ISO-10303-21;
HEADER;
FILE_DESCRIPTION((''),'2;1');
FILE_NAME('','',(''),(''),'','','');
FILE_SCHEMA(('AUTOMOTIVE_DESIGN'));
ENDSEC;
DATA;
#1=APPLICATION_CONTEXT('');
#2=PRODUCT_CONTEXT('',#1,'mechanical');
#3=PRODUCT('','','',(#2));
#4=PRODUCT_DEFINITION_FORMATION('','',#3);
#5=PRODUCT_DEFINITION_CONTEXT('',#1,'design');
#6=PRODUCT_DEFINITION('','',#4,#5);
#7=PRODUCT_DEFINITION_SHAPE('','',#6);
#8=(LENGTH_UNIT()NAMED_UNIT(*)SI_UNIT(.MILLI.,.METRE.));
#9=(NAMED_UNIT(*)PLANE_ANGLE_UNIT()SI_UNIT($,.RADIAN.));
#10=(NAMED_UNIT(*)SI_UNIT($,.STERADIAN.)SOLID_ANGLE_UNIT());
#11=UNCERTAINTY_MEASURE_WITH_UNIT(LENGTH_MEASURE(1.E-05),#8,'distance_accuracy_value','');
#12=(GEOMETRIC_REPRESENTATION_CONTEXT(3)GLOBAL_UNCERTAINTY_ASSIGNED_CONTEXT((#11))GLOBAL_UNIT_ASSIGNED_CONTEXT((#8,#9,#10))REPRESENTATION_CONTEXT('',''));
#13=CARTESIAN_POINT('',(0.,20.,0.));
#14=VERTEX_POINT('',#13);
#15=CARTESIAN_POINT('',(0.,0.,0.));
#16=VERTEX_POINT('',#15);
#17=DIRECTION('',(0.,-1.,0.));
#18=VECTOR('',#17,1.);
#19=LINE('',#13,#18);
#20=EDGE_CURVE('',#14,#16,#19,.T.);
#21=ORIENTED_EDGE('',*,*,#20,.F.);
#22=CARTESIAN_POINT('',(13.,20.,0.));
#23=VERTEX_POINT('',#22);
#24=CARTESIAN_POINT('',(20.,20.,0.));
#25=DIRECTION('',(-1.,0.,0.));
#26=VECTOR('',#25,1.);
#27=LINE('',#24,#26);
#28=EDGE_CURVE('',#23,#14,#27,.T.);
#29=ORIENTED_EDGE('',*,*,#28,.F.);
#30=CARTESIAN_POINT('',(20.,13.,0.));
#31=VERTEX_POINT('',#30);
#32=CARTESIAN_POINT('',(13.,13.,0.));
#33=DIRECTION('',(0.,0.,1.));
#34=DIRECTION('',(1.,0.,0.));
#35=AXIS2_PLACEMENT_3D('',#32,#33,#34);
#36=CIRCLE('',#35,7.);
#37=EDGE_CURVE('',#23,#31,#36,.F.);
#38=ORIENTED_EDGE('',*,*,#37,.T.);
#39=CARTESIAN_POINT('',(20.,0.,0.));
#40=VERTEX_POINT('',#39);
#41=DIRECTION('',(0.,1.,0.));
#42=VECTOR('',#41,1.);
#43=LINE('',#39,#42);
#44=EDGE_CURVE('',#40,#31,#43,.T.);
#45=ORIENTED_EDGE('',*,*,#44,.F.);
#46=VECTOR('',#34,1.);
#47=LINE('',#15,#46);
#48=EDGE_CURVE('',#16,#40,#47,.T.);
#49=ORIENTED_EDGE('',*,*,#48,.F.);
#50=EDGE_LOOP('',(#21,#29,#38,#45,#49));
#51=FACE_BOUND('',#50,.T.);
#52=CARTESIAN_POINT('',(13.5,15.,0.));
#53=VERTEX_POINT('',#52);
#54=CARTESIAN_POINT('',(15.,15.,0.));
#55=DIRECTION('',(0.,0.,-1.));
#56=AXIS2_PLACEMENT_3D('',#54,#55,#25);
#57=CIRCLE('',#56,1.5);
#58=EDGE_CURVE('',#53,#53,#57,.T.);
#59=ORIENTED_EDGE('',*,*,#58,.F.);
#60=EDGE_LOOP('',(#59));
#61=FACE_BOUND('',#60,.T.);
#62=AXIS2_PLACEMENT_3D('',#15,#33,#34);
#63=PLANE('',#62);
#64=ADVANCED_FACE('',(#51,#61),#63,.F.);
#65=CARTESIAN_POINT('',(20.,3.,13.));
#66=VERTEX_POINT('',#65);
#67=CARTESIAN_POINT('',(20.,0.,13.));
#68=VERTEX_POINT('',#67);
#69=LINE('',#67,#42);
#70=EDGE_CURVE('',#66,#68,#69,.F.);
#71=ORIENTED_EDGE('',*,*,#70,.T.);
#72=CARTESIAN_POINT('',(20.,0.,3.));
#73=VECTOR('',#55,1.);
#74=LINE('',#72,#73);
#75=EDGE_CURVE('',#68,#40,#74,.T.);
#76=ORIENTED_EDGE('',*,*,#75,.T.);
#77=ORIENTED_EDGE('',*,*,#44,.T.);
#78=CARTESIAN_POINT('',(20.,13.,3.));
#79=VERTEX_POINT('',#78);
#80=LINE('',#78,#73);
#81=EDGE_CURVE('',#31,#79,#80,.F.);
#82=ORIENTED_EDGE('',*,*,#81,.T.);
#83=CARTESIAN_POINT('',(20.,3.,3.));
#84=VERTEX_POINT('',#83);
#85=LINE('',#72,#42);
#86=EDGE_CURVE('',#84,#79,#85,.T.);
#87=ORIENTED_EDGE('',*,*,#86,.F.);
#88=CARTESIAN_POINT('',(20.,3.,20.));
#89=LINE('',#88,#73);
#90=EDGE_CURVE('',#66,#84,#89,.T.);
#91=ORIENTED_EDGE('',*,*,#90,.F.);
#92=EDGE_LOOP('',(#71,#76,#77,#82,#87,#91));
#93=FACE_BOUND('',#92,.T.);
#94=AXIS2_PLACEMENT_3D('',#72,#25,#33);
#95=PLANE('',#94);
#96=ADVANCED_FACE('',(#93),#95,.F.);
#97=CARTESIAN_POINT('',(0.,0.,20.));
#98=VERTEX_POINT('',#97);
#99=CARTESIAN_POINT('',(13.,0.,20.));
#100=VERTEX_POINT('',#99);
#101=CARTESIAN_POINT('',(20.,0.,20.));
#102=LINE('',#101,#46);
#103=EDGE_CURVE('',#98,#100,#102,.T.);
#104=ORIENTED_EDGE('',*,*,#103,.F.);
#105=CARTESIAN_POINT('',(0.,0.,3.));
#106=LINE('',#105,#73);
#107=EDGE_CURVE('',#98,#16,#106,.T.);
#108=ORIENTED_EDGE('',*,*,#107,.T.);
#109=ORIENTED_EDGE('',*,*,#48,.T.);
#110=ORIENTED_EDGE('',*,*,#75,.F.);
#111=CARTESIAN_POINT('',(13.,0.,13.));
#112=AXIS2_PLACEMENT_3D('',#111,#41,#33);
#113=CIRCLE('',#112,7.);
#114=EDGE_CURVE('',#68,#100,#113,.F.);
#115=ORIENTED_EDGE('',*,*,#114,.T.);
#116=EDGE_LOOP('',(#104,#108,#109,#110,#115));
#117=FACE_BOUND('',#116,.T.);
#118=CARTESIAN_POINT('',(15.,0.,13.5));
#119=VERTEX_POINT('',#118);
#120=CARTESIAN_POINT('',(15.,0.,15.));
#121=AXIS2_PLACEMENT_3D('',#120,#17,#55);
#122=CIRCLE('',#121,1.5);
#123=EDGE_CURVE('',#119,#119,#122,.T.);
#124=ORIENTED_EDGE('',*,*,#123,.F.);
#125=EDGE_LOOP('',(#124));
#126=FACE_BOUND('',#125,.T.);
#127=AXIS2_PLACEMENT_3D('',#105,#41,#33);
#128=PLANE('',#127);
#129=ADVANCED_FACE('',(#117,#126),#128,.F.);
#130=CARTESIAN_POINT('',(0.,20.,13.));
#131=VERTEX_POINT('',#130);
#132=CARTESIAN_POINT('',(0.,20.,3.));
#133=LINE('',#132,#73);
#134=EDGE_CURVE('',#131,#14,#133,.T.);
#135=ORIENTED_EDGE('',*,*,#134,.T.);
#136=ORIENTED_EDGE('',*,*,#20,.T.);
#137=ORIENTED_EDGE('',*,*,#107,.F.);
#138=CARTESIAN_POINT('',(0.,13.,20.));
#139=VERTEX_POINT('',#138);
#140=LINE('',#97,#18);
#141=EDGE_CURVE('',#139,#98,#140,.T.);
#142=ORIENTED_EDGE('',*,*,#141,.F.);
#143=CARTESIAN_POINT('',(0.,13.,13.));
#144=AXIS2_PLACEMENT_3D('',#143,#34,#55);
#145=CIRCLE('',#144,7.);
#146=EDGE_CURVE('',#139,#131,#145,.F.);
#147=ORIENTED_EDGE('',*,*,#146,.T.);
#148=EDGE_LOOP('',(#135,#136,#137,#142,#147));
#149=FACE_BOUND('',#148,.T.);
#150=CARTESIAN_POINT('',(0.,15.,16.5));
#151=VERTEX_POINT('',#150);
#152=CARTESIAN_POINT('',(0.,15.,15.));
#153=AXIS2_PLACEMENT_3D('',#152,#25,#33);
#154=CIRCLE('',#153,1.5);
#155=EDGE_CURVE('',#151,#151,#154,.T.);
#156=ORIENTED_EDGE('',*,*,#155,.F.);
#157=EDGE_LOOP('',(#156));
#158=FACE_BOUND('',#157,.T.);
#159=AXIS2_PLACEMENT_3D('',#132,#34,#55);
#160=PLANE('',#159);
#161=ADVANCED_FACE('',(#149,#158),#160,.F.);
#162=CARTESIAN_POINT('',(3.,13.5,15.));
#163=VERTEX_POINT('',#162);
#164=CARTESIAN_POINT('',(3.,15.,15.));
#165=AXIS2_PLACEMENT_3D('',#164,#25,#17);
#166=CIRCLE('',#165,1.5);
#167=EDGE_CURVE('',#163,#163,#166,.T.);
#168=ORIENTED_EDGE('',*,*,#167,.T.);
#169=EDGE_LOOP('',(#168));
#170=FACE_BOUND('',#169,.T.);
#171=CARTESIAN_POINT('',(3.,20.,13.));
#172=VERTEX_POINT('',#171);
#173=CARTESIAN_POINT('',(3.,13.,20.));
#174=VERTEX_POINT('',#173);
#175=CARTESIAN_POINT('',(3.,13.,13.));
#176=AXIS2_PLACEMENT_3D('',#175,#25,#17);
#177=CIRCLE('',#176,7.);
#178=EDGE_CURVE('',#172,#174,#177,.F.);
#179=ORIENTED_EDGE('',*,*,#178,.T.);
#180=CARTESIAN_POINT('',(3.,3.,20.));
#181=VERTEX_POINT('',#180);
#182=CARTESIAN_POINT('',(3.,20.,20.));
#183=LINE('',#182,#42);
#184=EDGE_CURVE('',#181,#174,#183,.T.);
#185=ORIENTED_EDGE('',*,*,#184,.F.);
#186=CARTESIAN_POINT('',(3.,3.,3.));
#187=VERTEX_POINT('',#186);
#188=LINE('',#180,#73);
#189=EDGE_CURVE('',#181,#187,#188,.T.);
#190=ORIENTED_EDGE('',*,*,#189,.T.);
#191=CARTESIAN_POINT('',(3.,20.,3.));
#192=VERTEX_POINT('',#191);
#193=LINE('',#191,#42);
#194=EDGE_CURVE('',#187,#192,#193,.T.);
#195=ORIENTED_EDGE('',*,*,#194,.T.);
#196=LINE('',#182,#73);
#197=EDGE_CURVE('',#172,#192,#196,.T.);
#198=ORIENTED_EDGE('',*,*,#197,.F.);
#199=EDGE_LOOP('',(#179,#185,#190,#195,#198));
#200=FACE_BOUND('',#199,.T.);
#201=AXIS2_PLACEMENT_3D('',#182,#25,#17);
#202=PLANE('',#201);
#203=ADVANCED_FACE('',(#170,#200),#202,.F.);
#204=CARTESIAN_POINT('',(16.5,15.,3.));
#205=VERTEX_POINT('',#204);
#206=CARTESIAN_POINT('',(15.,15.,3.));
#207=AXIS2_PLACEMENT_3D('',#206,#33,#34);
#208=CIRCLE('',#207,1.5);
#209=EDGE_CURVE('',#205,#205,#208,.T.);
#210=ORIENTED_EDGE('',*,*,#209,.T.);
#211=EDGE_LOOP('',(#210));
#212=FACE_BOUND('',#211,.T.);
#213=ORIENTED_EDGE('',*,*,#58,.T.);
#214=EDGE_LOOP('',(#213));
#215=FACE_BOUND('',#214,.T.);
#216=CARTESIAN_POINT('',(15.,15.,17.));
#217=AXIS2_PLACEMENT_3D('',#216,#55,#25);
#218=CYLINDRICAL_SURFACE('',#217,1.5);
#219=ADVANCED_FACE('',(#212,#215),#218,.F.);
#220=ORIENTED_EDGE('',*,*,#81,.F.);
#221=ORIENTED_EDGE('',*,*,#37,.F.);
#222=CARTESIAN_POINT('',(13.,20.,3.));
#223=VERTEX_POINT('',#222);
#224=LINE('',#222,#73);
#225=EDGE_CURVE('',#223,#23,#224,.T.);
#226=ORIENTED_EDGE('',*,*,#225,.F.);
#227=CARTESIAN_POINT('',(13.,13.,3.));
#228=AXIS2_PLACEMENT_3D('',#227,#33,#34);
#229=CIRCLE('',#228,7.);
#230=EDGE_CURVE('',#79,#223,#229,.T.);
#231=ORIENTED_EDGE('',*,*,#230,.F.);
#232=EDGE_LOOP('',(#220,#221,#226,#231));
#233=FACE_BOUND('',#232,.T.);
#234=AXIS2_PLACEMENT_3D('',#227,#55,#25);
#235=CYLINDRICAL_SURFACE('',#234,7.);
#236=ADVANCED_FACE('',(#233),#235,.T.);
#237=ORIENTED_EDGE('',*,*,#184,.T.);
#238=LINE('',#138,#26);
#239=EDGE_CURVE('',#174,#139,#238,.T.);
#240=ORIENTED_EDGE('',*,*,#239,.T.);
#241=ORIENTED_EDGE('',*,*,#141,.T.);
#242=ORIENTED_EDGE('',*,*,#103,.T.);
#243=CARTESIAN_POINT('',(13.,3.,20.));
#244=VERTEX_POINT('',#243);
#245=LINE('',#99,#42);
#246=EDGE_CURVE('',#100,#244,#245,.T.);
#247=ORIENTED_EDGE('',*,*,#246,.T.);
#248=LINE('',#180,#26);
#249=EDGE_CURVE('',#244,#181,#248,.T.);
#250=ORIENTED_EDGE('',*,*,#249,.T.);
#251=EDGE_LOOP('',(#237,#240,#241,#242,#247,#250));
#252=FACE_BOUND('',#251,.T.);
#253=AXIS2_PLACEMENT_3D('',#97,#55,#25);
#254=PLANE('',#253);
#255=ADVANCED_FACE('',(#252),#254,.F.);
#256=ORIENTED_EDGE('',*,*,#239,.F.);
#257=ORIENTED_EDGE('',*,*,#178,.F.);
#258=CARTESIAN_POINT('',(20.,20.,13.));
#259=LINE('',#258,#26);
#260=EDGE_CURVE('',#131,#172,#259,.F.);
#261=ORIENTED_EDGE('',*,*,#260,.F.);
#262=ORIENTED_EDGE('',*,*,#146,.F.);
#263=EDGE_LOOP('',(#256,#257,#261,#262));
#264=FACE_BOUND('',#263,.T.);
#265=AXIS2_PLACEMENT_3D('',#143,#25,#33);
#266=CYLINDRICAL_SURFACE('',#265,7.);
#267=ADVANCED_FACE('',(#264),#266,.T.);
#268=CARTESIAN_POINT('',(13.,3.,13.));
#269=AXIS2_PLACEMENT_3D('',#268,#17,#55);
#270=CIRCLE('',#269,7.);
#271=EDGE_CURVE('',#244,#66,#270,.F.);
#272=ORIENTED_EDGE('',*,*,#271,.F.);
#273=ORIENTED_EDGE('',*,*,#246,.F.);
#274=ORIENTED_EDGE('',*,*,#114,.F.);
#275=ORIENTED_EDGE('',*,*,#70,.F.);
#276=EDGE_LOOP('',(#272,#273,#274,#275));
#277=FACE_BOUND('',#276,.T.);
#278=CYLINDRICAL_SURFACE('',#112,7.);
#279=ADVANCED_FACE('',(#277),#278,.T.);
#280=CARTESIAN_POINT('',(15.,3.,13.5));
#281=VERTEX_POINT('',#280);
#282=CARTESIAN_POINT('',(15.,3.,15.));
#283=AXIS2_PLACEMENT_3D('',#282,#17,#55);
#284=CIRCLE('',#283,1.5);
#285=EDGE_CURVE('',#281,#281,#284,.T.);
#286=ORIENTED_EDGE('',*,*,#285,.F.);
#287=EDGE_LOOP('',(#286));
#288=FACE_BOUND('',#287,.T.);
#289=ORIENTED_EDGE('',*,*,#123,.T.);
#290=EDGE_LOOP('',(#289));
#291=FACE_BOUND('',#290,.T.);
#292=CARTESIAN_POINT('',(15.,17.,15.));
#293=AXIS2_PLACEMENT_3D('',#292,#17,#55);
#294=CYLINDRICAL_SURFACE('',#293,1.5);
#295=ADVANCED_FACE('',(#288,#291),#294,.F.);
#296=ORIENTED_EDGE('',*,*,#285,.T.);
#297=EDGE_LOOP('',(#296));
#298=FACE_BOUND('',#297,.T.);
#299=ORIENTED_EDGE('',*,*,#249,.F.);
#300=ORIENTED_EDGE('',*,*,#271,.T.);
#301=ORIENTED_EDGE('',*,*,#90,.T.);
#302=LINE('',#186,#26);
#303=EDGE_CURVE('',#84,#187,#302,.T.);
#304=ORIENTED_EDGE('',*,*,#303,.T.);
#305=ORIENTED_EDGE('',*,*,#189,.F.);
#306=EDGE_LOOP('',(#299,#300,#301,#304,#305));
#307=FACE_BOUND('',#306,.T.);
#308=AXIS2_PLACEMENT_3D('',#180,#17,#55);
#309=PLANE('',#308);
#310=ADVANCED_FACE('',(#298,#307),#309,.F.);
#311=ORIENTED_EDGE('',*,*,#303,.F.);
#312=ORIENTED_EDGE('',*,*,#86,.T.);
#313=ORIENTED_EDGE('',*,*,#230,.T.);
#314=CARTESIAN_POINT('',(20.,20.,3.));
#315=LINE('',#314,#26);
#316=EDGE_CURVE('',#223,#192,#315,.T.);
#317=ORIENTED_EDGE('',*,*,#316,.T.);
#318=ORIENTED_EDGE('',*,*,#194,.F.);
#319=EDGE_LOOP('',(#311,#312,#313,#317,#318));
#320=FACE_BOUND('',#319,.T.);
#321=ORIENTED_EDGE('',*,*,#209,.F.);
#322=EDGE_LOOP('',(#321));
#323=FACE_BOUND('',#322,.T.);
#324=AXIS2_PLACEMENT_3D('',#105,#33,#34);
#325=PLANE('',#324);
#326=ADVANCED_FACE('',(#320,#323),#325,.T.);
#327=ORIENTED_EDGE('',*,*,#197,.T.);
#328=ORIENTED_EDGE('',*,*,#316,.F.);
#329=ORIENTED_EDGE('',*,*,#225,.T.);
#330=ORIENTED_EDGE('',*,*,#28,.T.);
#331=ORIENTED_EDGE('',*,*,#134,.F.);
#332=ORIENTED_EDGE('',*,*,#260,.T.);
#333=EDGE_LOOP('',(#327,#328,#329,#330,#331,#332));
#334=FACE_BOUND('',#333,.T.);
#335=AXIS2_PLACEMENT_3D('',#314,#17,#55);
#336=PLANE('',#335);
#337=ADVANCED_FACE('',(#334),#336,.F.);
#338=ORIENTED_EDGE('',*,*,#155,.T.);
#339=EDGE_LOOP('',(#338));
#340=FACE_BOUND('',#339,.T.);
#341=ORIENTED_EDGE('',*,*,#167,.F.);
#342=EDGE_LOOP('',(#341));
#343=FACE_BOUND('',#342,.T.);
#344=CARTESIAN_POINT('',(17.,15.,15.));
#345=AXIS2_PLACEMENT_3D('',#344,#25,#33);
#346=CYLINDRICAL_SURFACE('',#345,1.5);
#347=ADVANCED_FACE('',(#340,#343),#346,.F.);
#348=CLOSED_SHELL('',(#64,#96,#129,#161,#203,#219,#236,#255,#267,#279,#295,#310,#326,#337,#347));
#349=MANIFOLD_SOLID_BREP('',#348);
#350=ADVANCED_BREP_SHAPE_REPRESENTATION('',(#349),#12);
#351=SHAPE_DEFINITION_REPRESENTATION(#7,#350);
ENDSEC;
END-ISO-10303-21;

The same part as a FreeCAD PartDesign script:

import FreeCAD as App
import Part
import Sketcher


def edges_at(feature, points):
    """Names of the edges that pass closest to the given points."""
    edges = feature.Shape.Edges
    near = lambda p: min(range(len(edges)), key=lambda i: edges[i].distToShape(Part.Vertex(*p))[0])
    return sorted({f"Edge{near(p) + 1}" for p in points})


def add_polygon(sketch, points):
    """Adds a closed chain of lines whose ends are joined by coincident constraints."""
    first, n = sketch.GeometryCount, len(points)
    for a, b in zip(points, points[1:] + points[:1]):
        sketch.addGeometry(Part.LineSegment(App.Vector(*a, 0), App.Vector(*b, 0)), False)
    for i in range(n):
        sketch.addConstraint(Sketcher.Constraint("Coincident", first + i, 2, first + (i + 1) % n, 1))

doc = App.newDocument("Part")
body = doc.addObject("PartDesign::Body", "Body")

# Sketch on XY plane
sketch1 = body.newObject("Sketcher::SketchObject", "Sketch")
sketch1.AttachmentSupport = (doc.getObject("XY_Plane"), [""])
sketch1.MapMode = "FlatFace"
add_polygon(sketch1, [(0, 20), (0, 0), (20, 0), (20, 20)])  # lines 0-3
sketch1.addConstraint(Sketcher.Constraint("Vertical", 0))
sketch1.addConstraint(Sketcher.Constraint("Horizontal", 1))
sketch1.addConstraint(Sketcher.Constraint("Vertical", 2))
sketch1.addConstraint(Sketcher.Constraint("Horizontal", 3))
sketch1.addConstraint(Sketcher.Constraint("Coincident", 0, 2, -1, 1))
sketch1.addConstraint(Sketcher.Constraint("Equal", 3, 0))
sketch1.addConstraint(Sketcher.Constraint("DistanceX", 1, 1, 1, 2, 20.0))
pad1 = body.newObject("PartDesign::Pad", "Pad")
pad1.Profile = sketch1
pad1.Length = 3

# Sketch on XY plane
sketch2 = body.newObject("Sketcher::SketchObject", "Sketch001")
sketch2.AttachmentSupport = (doc.getObject("XY_Plane"), [""])
sketch2.MapMode = "FlatFace"
sketch2.AttachmentOffset = App.Placement(App.Vector(0, 0, 3), App.Rotation())
add_polygon(sketch2, [(3, 20), (0, 20), (0, 0), (20, 0), (20, 3), (3, 3)])  # lines 0-5
sketch2.addConstraint(Sketcher.Constraint("Horizontal", 0))
sketch2.addConstraint(Sketcher.Constraint("Vertical", 1))
sketch2.addConstraint(Sketcher.Constraint("Horizontal", 2))
sketch2.addConstraint(Sketcher.Constraint("Vertical", 3))
sketch2.addConstraint(Sketcher.Constraint("Horizontal", 4))
sketch2.addConstraint(Sketcher.Constraint("Vertical", 5))
sketch2.addConstraint(Sketcher.Constraint("Coincident", 1, 2, -1, 1))
sketch2.addConstraint(Sketcher.Constraint("Equal", 2, 1))
sketch2.addConstraint(Sketcher.Constraint("Equal", 0, 3))
sketch2.addConstraint(Sketcher.Constraint("DistanceX", 0, 2, 0, 1, 3.0))
sketch2.addConstraint(Sketcher.Constraint("DistanceX", 2, 1, 2, 2, 20.0))
pad2 = body.newObject("PartDesign::Pad", "Pad001")
pad2.Profile = sketch2
pad2.Length = 17

# Sketch on YZ plane
sketch3 = body.newObject("Sketcher::SketchObject", "Sketch002")
sketch3.AttachmentSupport = (doc.getObject("YZ_Plane"), [""])
sketch3.MapMode = "FlatFace"
sketch3.addGeometry(Part.Circle(App.Vector(15, 15, 0), App.Vector(0, 0, 1), 1.5), False)
sketch3.addConstraint(Sketcher.Constraint("Diameter", 0, 3.0))
sketch3.addConstraint(Sketcher.Constraint("DistanceX", -1, 1, 0, 3, 15.0))
sketch3.addConstraint(Sketcher.Constraint("DistanceY", -1, 1, 0, 3, 15.0))
pocket1 = body.newObject("PartDesign::Pocket", "Pocket")
pocket1.Profile = sketch3
pocket1.Length = 17
pocket1.Reversed = True

# Sketch on XY plane
sketch4 = body.newObject("Sketcher::SketchObject", "Sketch003")
sketch4.AttachmentSupport = (doc.getObject("XY_Plane"), [""])
sketch4.MapMode = "FlatFace"
sketch4.addGeometry(Part.Circle(App.Vector(15, 15, 0), App.Vector(0, 0, 1), 1.5), False)
sketch4.addConstraint(Sketcher.Constraint("Diameter", 0, 3.0))
sketch4.addConstraint(Sketcher.Constraint("DistanceX", -1, 1, 0, 3, 15.0))
sketch4.addConstraint(Sketcher.Constraint("DistanceY", -1, 1, 0, 3, 15.0))
pocket2 = body.newObject("PartDesign::Pocket", "Pocket001")
pocket2.Profile = sketch4
pocket2.Length = 17
pocket2.Reversed = True

# Sketch on XZ plane
sketch5 = body.newObject("Sketcher::SketchObject", "Sketch004")
sketch5.AttachmentSupport = (doc.getObject("XZ_Plane"), [""])
sketch5.MapMode = "FlatFace"
sketch5.addGeometry(Part.Circle(App.Vector(15, 15, 0), App.Vector(0, 0, 1), 1.5), False)
sketch5.addConstraint(Sketcher.Constraint("Diameter", 0, 3.0))
sketch5.addConstraint(Sketcher.Constraint("DistanceX", -1, 1, 0, 3, 15.0))
sketch5.addConstraint(Sketcher.Constraint("DistanceY", -1, 1, 0, 3, 15.0))
pocket3 = body.newObject("PartDesign::Pocket", "Pocket002")
pocket3.Profile = sketch5
pocket3.Length = 17
doc.recompute()

fillet = body.newObject("PartDesign::Fillet", "Fillet")
fillet.Base = (pocket3, edges_at(pocket3, [(20, 1.5, 20), (1.5, 20, 20), (20, 20, 1.5)]))
fillet.Radius = 7

doc.recompute()
